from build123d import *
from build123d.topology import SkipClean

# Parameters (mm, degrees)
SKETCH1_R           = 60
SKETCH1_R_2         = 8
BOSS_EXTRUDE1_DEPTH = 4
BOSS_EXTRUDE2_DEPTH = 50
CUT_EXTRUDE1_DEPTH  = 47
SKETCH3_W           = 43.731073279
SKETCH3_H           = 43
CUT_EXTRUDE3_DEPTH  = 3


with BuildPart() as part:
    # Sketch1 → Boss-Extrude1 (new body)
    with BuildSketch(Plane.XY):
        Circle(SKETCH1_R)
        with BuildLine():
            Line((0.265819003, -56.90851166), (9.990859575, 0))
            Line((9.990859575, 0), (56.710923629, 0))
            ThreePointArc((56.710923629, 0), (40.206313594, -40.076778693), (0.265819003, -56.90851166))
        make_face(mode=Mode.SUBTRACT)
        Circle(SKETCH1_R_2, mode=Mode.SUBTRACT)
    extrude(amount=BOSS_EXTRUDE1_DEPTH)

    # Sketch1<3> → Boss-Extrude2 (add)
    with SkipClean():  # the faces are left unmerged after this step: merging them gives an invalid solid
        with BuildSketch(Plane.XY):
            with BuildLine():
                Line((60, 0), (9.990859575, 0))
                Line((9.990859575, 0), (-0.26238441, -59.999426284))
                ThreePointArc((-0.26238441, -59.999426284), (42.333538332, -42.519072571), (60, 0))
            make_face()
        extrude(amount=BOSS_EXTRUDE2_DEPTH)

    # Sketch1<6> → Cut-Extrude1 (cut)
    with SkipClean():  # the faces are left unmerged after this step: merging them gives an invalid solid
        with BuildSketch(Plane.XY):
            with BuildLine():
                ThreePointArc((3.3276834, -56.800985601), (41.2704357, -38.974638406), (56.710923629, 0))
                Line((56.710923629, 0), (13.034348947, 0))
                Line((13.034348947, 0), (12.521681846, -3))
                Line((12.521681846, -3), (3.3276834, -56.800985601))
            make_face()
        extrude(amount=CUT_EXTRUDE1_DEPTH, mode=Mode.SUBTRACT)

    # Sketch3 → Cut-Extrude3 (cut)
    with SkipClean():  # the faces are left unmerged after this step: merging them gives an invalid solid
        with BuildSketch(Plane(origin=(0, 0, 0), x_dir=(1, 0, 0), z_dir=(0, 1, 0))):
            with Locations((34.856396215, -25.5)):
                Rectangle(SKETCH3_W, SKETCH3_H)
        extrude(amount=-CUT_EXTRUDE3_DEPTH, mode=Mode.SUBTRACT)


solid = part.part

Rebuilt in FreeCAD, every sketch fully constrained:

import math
import FreeCAD as App
import Part
import Sketcher
from FreeCAD import Vector
Q = App.Units.Quantity


def add_polygon(sketch, points):
    """Adds a closed chain of lines whose ends are joined by coincident constraints."""
    first, n = sketch.GeometryCount, len(points)
    for a, b in zip(points, points[1:] + points[:1]):
        sketch.addGeometry(Part.LineSegment(App.Vector(*a, 0), App.Vector(*b, 0)), False)
    for i in range(n):
        sketch.addConstraint(Sketcher.Constraint("Coincident", first + i, 2, first + (i + 1) % n, 1))

doc = App.newDocument("Part")
params = doc.addObject("Spreadsheet::Sheet", "Params")
for row, (alias, value) in enumerate([
    ("sketch1_diameter", "120 mm"),
    ("sketch1_diameter2", "16 mm"),
    ("pad1_length", "4 mm"),
    ("sketch2_radius", "60 mm"),
    ("pad2_length", "50 mm"),
    ("pocket1_length", "47 mm"),
    ("sketch4_height", "43 mm"),
    ("pocket2_length", "3 mm"),
], start=1):
    params.set(f"A{row}", alias)
    params.set(f"B{row}", "=" + value)
    params.setAlias(f"B{row}", alias)

body = doc.addObject("PartDesign::Body", "Body")

# Sketch on XY plane
sketch1 = body.newObject("Sketcher::SketchObject", "Sketch")
sketch1.AttachmentSupport = (doc.getObject("XY_Plane"), [""])
sketch1.MapMode = "FlatFace"
sketch1.addGeometry([
    Part.Circle(Vector(0, 0, 0), Vector(0, 0, 1), 60),  # 0
    Part.ArcOfCircle(Part.Circle(Vector(-0.199878, 0.000385, 0), Vector(0, 0, 1), 56.910802), math.radians(-89.531147), math.radians(-0.000387)),  # 1
    Part.LineSegment(Vector(0.265819, -56.908512, 0), Vector(9.99086, 0, 0)),  # 2
    Part.LineSegment(Vector(9.99086, 0, 0), Vector(56.710924, 0, 0)),  # 3
    Part.Circle(Vector(0, 0, 0), Vector(0, 0, 1), 8),  # 4
], False)
sketch1.addConstraint([
    Sketcher.Constraint("Coincident", 1, 1, 2, 1),
    Sketcher.Constraint("Coincident", 2, 2, 3, 1),
    Sketcher.Constraint("Coincident", 3, 2, 1, 2),
    Sketcher.Constraint("Horizontal", 3),
    Sketcher.Constraint("Coincident", 0, 3, -1, 1),
    Sketcher.Constraint("Coincident", 4, 3, -1, 1),
    Sketcher.Constraint("PointOnObject", 2, 2, -1),
    Sketcher.Constraint("Diameter", 0, Q("120 mm")),
    Sketcher.Constraint("Diameter", 4, Q("16 mm")),
    Sketcher.Constraint("Radius", 1, Q("56.910802 mm")),
    Sketcher.Constraint("DistanceX", 3, 1, 3, 2, Q("46.720064 mm")),
    Sketcher.Constraint("DistanceX", 1, 3, -1, 1, Q("0.199878 mm")),
    Sketcher.Constraint("DistanceX", -1, 1, 1, 1, Q("0.265819 mm")),
    Sketcher.Constraint("DistanceY", 1, 1, -1, 1, Q("56.908512 mm")),
])
sketch1.setExpression("Constraints[7]", "Params.sketch1_diameter")
sketch1.setExpression("Constraints[8]", "Params.sketch1_diameter2")
pad1 = body.newObject("PartDesign::Pad", "Pad")
pad1.Profile = sketch1
pad1.setExpression("Length", "Params.pad1_length")

# Sketch on XY plane
sketch2 = body.newObject("Sketcher::SketchObject", "Sketch001")
sketch2.AttachmentSupport = (doc.getObject("XY_Plane"), [""])
sketch2.MapMode = "FlatFace"
sketch2.addGeometry([
    Part.LineSegment(Vector(60, 0, 0), Vector(9.99086, 0, 0)),
    Part.LineSegment(Vector(9.99086, 0, 0), Vector(-0.262384, -59.999426, 0)),
    Part.ArcOfCircle(Part.Circle(Vector(0, 0, 0), Vector(0, 0, 1), 60), math.radians(-90.250559), math.radians(0)),
], False)
sketch2.addConstraint([
    Sketcher.Constraint("Coincident", 0, 2, 1, 1),
    Sketcher.Constraint("Coincident", 1, 2, 2, 1),
    Sketcher.Constraint("Coincident", 2, 2, 0, 1),
    Sketcher.Constraint("Horizontal", 0),
    Sketcher.Constraint("Coincident", 2, 3, -1, 1),
    Sketcher.Constraint("PointOnObject", 0, 2, -1),
    Sketcher.Constraint("Radius", 2, Q("60 mm")),
    Sketcher.Constraint("DistanceX", 0, 2, 0, 1, Q("50.00914 mm")),
    Sketcher.Constraint("Distance", 1, Q("60.869205 mm")),
])
sketch2.setExpression("Constraints[6]", "Params.sketch2_radius")
pad2 = body.newObject("PartDesign::Pad", "Pad001")
pad2.Profile = sketch2
pad2.setExpression("Length", "Params.pad2_length")

# Sketch on XY plane
sketch3 = body.newObject("Sketcher::SketchObject", "Sketch002")
sketch3.AttachmentSupport = (doc.getObject("XY_Plane"), [""])
sketch3.MapMode = "FlatFace"
sketch3.addGeometry([
    Part.ArcOfCircle(Part.Circle(Vector(-0.199878, 0.000385, 0), Vector(0, 0, 1), 56.910802), math.radians(-86.446298), math.radians(-0.000387)),
    Part.LineSegment(Vector(56.710924, 0, 0), Vector(13.034349, 0, 0)),
    Part.LineSegment(Vector(13.034349, 0, 0), Vector(12.521682, -3, 0)),
    Part.LineSegment(Vector(12.521682, -3, 0), Vector(3.327683, -56.800986, 0)),
], False)
sketch3.addConstraint([
    Sketcher.Constraint("Coincident", 0, 2, 1, 1),
    Sketcher.Constraint("Coincident", 1, 2, 2, 1),
    Sketcher.Constraint("Coincident", 2, 2, 3, 1),
    Sketcher.Constraint("Coincident", 3, 2, 0, 1),
    Sketcher.Constraint("Horizontal", 1),
    Sketcher.Constraint("PointOnObject", 0, 2, -1),
    Sketcher.Constraint("Parallel", 2, 3),
    Sketcher.Constraint("DistanceY", 2, 2, -1, 1, Q("3 mm")),
    Sketcher.Constraint("Radius", 0, Q("56.910802 mm")),
    Sketcher.Constraint("DistanceX", 3, 2, 2, 2, Q("9.193998 mm")),
    Sketcher.Constraint("Distance", 3, Q("54.580909 mm")),
    Sketcher.Constraint("DistanceX", 1, 2, 1, 1, Q("43.676575 mm")),
    Sketcher.Constraint("DistanceX", 0, 3, -1, 1, Q("0.199878 mm")),
])
pocket1 = body.newObject("PartDesign::Pocket", "Pocket")
pocket1.Profile = sketch3
pocket1.setExpression("Length", "Params.pocket1_length")
pocket1.Reversed = True

# Sketch on XZ plane
sketch4 = body.newObject("Sketcher::SketchObject", "Sketch003")
sketch4.AttachmentSupport = (doc.getObject("XZ_Plane"), [""])
sketch4.MapMode = "FlatFace"
add_polygon(sketch4, [(12.99086, 4), (12.99086, 47), (56.721933, 47), (56.721933, 4)])  # lines 0-3
sketch4.addConstraint([
    Sketcher.Constraint("Vertical", 0),
    Sketcher.Constraint("Horizontal", 1),
    Sketcher.Constraint("Vertical", 2),
    Sketcher.Constraint("Horizontal", 3),
    Sketcher.Constraint("DistanceY", 0, 1, 0, 2, Q("43 mm")),
    Sketcher.Constraint("DistanceY", -1, 1, 0, 2, Q("47 mm")),
    Sketcher.Constraint("DistanceX", 1, 1, 1, 2, Q("43.731073 mm")),
    Sketcher.Constraint("DistanceX", -1, 1, 0, 2, Q("12.99086 mm")),
])
sketch4.setExpression("Constraints[8]", "Params.sketch4_height")
pocket2 = body.newObject("PartDesign::Pocket", "Pocket001")
pocket2.Profile = sketch4
pocket2.setExpression("Length", "Params.pocket2_length")
pocket2.Reversed = True

doc.recompute()
